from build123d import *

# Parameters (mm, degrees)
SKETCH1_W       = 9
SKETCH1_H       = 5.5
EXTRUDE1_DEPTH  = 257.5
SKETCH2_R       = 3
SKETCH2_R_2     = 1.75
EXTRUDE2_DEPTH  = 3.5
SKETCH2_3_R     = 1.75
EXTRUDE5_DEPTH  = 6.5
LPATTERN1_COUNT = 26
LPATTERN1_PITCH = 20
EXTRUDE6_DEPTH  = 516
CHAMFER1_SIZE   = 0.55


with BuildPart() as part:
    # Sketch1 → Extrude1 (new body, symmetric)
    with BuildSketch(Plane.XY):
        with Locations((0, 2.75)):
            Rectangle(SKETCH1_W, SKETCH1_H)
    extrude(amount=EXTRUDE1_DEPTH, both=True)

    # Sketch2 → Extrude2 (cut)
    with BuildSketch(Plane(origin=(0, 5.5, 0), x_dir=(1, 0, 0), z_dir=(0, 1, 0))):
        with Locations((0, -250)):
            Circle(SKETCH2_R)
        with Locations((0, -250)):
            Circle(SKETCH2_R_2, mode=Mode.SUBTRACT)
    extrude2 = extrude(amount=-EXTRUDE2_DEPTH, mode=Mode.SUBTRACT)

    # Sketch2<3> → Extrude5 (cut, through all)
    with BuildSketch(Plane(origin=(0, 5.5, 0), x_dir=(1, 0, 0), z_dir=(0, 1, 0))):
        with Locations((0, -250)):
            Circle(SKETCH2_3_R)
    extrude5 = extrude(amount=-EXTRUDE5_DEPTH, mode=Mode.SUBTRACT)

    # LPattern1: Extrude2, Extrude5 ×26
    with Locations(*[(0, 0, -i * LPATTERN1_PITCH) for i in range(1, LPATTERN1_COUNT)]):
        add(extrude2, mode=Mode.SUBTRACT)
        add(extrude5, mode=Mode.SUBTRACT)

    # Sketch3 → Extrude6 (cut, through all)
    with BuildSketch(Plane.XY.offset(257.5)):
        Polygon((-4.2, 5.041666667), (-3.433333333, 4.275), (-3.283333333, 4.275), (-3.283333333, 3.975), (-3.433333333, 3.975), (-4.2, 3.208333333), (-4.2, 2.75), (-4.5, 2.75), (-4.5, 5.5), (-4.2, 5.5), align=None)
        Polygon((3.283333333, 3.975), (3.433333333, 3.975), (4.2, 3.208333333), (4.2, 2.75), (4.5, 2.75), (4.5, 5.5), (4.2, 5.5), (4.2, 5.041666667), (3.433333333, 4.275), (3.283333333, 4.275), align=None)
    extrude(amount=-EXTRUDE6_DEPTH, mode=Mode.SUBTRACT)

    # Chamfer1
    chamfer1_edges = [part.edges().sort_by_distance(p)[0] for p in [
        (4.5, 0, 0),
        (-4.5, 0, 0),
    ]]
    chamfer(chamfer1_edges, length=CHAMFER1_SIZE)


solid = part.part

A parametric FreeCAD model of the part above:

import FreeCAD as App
import Part
import Sketcher
from FreeCAD import Vector
Q = App.Units.Quantity


def edges_at(feature, points):
    """Names of the edges that pass closest to the given points."""
    edges = feature.Shape.Edges
    near = lambda p: min(range(len(edges)), key=lambda i: edges[i].distToShape(Part.Vertex(*p))[0])
    return sorted({f"Edge{near(p) + 1}" for p in points})


def add_polygon(sketch, points):
    """Adds a closed chain of lines whose ends are joined by coincident constraints."""
    first, n = sketch.GeometryCount, len(points)
    for a, b in zip(points, points[1:] + points[:1]):
        sketch.addGeometry(Part.LineSegment(App.Vector(*a, 0), App.Vector(*b, 0)), False)
    for i in range(n):
        sketch.addConstraint(Sketcher.Constraint("Coincident", first + i, 2, first + (i + 1) % n, 1))

doc = App.newDocument("Part")
body = doc.addObject("PartDesign::Body", "Body")

# Sketch on XY plane
sketch1 = body.newObject("Sketcher::SketchObject", "Sketch")
sketch1.AttachmentSupport = (doc.getObject("XY_Plane"), [""])
sketch1.MapMode = "FlatFace"
add_polygon(sketch1, [(-4.5, 5.5), (-4.5, 0), (4.5, 0), (4.5, 5.5)])  # lines 0-3
sketch1.addConstraint([
    Sketcher.Constraint("Vertical", 0),
    Sketcher.Constraint("Horizontal", 1),
    Sketcher.Constraint("Vertical", 2),
    Sketcher.Constraint("Horizontal", 3),
    Sketcher.Constraint("Symmetric", 0, 2, 1, 2, -1, 1),
    Sketcher.Constraint("DistanceX", 1, 1, 1, 2, Q("9 mm")),
    Sketcher.Constraint("DistanceY", 0, 2, 0, 1, Q("5.5 mm")),
])
pad1 = body.newObject("PartDesign::Pad", "Pad")
pad1.Profile = sketch1
pad1.Length = 515
pad1.Midplane = True

# Sketch on XZ plane
sketch2 = body.newObject("Sketcher::SketchObject", "Sketch001")
sketch2.AttachmentSupport = (doc.getObject("XZ_Plane"), [""])
sketch2.MapMode = "FlatFace"
sketch2.AttachmentOffset = App.Placement(Vector(0, 0, -5.5), App.Rotation())
sketch2.addGeometry([
    Part.Circle(Vector(0, 250, 0), Vector(0, 0, 1), 3),
    Part.Circle(Vector(0, 250, 0), Vector(0, 0, 1), 1.75),
], False)
sketch2.addConstraint([
    Sketcher.Constraint("Coincident", 1, 3, 0, 3),
    Sketcher.Constraint("PointOnObject", 0, 3, -2),
    Sketcher.Constraint("Diameter", 0, Q("6 mm")),
    Sketcher.Constraint("Diameter", 1, Q("3.5 mm")),
    Sketcher.Constraint("DistanceY", -1, 1, 0, 3, Q("250 mm")),
])
pocket1 = body.newObject("PartDesign::Pocket", "Pocket")
pocket1.Profile = sketch2
pocket1.Length = 3.5
pocket1.Reversed = True

# Sketch on XZ plane
sketch3 = body.newObject("Sketcher::SketchObject", "Sketch002")
sketch3.AttachmentSupport = (doc.getObject("XZ_Plane"), [""])
sketch3.MapMode = "FlatFace"
sketch3.AttachmentOffset = App.Placement(Vector(0, 0, -5.5), App.Rotation())
sketch3.addGeometry(Part.Circle(Vector(0, 250, 0), Vector(0, 0, 1), 1.75), False)
sketch3.addConstraint([
    Sketcher.Constraint("PointOnObject", 0, 3, -2),
    Sketcher.Constraint("Diameter", 0, Q("3.5 mm")),
    Sketcher.Constraint("DistanceY", -1, 1, 0, 3, Q("250 mm")),
])
pocket2 = body.newObject("PartDesign::Pocket", "Pocket001")
pocket2.Profile = sketch3
pocket2.Type = "ThroughAll"
pocket2.Reversed = True
doc.recompute()

linearpattern = body.newObject("PartDesign::LinearPattern", "LinearPattern")
linearpattern.Originals = [pocket1, pocket2]
linearpattern.Direction = (doc.getObject("Z_Axis"), [""])
linearpattern.Mode = "offset"
linearpattern.Offset = 20
linearpattern.Occurrences = 26
linearpattern.Reversed = True
body.Tip = linearpattern

# Sketch on XY plane
sketch4 = body.newObject("Sketcher::SketchObject", "Sketch003")
sketch4.AttachmentSupport = (doc.getObject("XY_Plane"), [""])
sketch4.MapMode = "FlatFace"
sketch4.AttachmentOffset = App.Placement(Vector(0, 0, 257.5), App.Rotation())
add_polygon(sketch4, [(-3.433333, 4.275), (-4.2, 5.041667), (-4.2, 5.5), (-4.5, 5.5), (-4.5, 2.75), (-4.2, 2.75), (-4.2, 3.208333), (-3.433333, 3.975), (-3.283333, 3.975), (-3.283333, 4.275)])  # lines 0-9
add_polygon(sketch4, [(3.283333, 3.975), (3.433333, 3.975), (4.2, 3.208333), (4.2, 2.75), (4.5, 2.75), (4.5, 5.5), (4.2, 5.5), (4.2, 5.041667), (3.433333, 4.275), (3.283333, 4.275)])  # lines 10-19
sketch4.addConstraint([
    Sketcher.Constraint("Vertical", 1),
    Sketcher.Constraint("Horizontal", 2),
    Sketcher.Constraint("Vertical", 3),
    Sketcher.Constraint("Horizontal", 4),
    Sketcher.Constraint("Vertical", 5),
    Sketcher.Constraint("Horizontal", 7),
    Sketcher.Constraint("Vertical", 8),
    Sketcher.Constraint("Horizontal", 9),
    Sketcher.Constraint("Horizontal", 10),
    Sketcher.Constraint("Vertical", 12),
    Sketcher.Constraint("Horizontal", 13),
    Sketcher.Constraint("Vertical", 14),
    Sketcher.Constraint("Horizontal", 15),
    Sketcher.Constraint("Vertical", 16),
    Sketcher.Constraint("Horizontal", 18),
    Sketcher.Constraint("Vertical", 19),
    Sketcher.Constraint("Symmetric", 6, 2, 10, 2, -2),
    Sketcher.Constraint("Symmetric", 5, 2, 11, 2, -2),
    Sketcher.Constraint("Symmetric", 3, 2, 13, 2, -2),
    Sketcher.Constraint("Symmetric", 1, 2, 15, 2, -2),
    Sketcher.Constraint("Symmetric", 9, 2, 17, 2, -2),
    Sketcher.Constraint("Perpendicular", 0, 6),
    Sketcher.Constraint("Perpendicular", 6, 11),
    Sketcher.Constraint("Perpendicular", 11, 17),
    Sketcher.Constraint("Vertical", 1, 2, 4, 2),
    Sketcher.Constraint("Vertical", 6, 2, 9, 2),
    Sketcher.Constraint("Equal", 9, 10),
    Sketcher.Constraint("Equal", 1, 5),
    Sketcher.Constraint("Equal", 15, 8),
    Sketcher.Constraint("DistanceX", 2, 2, 2, 1, Q("0.3 mm")),
    Sketcher.Constraint("DistanceX", 7, 1, 7, 2, Q("0.15 mm")),
    Sketcher.Constraint("DistanceY", 3, 2, 3, 1, Q("2.75 mm")),
    Sketcher.Constraint("DistanceX", 0, 2, -1, 1, Q("4.2 mm")),
    Sketcher.Constraint("DistanceY", -1, 1, 1, 2, Q("5.5 mm")),
    Sketcher.Constraint("Distance", 0, Q("1.08423 mm")),
])
pocket3 = body.newObject("PartDesign::Pocket", "Pocket002")
pocket3.Profile = sketch4
pocket3.Type = "ThroughAll"
doc.recompute()

chamfer = body.newObject("PartDesign::Chamfer", "Chamfer")
chamfer.Base = (pocket3, edges_at(pocket3, [(4.5, 0, 0), (-4.5, 0, 0)]))
chamfer.Size = 0.55

doc.recompute()
